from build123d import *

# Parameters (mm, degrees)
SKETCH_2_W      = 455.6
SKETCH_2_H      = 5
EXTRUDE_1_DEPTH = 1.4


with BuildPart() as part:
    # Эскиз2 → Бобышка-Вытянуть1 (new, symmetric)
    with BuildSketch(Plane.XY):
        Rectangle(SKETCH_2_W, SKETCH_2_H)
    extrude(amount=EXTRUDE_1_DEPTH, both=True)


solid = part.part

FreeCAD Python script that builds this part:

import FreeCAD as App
import Part
import Sketcher

V = App.Vector
Q = App.Units.Quantity


def add_polygon(sketch, points):
    """Adds a closed chain of lines whose ends are joined by coincident constraints."""
    first, n = sketch.GeometryCount, len(points)
    for a, b in zip(points, points[1:] + points[:1]):
        sketch.addGeometry(Part.LineSegment(App.Vector(*a, 0), App.Vector(*b, 0)), False)
    for i in range(n):
        sketch.addConstraint(Sketcher.Constraint("Coincident", first + i, 2, first + (i + 1) % n, 1))

doc = App.newDocument("Part")
params = doc.addObject("Spreadsheet::Sheet", "Params")
for row, (alias, value) in enumerate([
    ("sketch1_height", "5 mm"),
    ("sketch1_width", "455.6 mm"),
    ("pad1_length", "2.8 mm"),
], start=1):
    params.set(f"A{row}", alias)
    params.set(f"B{row}", "=" + value)
    params.setAlias(f"B{row}", alias)

body = doc.addObject("PartDesign::Body", "Body")

# Sketch on XY plane
sketch1 = body.newObject("Sketcher::SketchObject", "Sketch")
sketch1.AttachmentSupport = (doc.getObject("XY_Plane"), [""])
sketch1.MapMode = "FlatFace"
add_polygon(sketch1, [(-227.8, 2.5), (-227.8, -2.5), (227.8, -2.5), (227.8, 2.5)])  # lines 0-3
sketch1.addConstraint([
    Sketcher.Constraint("Vertical", 0),
    Sketcher.Constraint("Horizontal", 1),
    Sketcher.Constraint("Vertical", 2),
    Sketcher.Constraint("Horizontal", 3),
    Sketcher.Constraint("Symmetric", 0, 2, 2, 2, -1, 1),
    Sketcher.Constraint("DistanceY", 0, 2, 0, 1, Q("5 mm")),
    Sketcher.Constraint("DistanceX", 1, 1, 1, 2, Q("455.6 mm")),
])
sketch1.setExpression("Constraints[9]", "Params.sketch1_height")
sketch1.setExpression("Constraints[10]", "Params.sketch1_width")
pad1 = body.newObject("PartDesign::Pad", "Pad")
pad1.Profile = sketch1
pad1.setExpression("Length", "Params.pad1_length")
pad1.Midplane = True

doc.recompute()
